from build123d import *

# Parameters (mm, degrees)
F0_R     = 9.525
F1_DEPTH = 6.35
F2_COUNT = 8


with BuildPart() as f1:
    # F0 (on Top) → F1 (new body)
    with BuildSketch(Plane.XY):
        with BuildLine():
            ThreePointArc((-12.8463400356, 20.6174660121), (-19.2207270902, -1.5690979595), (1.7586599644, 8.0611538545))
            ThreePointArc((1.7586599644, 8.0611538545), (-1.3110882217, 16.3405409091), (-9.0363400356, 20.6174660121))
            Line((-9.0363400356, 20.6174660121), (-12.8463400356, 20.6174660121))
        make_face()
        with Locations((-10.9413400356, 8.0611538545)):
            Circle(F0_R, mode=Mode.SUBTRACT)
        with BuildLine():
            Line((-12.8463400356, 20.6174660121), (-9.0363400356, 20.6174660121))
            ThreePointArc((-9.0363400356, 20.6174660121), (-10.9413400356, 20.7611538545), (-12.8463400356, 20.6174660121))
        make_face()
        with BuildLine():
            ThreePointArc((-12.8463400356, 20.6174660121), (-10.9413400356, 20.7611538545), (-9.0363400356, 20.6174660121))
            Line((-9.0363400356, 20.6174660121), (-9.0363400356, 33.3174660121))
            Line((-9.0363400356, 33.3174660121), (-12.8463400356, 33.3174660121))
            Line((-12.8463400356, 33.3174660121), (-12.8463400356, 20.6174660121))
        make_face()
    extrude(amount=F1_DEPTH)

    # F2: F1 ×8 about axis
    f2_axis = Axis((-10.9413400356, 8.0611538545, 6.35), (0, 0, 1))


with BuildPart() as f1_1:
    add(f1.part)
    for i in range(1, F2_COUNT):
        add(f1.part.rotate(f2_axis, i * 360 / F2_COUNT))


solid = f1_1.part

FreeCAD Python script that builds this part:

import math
import FreeCAD as App
import Part
import Sketcher
Q = App.Units.Quantity

doc = App.newDocument("Part")
body = doc.addObject("PartDesign::Body", "Body")

sketch1 = doc.addObject("Sketcher::SketchObject", "Sketch")
body.addObject(sketch1)
sketch1.AttachmentSupport = (doc.XY_Plane, [""])
sketch1.MapMode = "FlatFace"
sketch1.addGeometry(Part.ArcOfCircle(Part.Circle(App.Vector(-10.94134, 8.061154, 0), App.Vector(0, 0, 1), 12.7), math.radians(98.626927), math.radians(360)), False)
sketch1.addGeometry(Part.ArcOfCircle(Part.Circle(App.Vector(-10.94134, 8.061154, 0), App.Vector(0, 0, 1), 12.7), math.radians(0), math.radians(81.373073)), False)
sketch1.addGeometry(Part.LineSegment(App.Vector(-9.03634, 20.617466, 0), App.Vector(-9.03634, 33.317466, 0)), False)
sketch1.addGeometry(Part.LineSegment(App.Vector(-9.03634, 33.317466, 0), App.Vector(-12.84634, 33.317466, 0)), False)
sketch1.addGeometry(Part.LineSegment(App.Vector(-12.84634, 33.317466, 0), App.Vector(-12.84634, 20.617466, 0)), False)
sketch1.addGeometry(Part.Circle(App.Vector(-10.94134, 8.061154, 0), App.Vector(0, 0, 1), 9.525), False)
sketch1.addConstraint(Sketcher.Constraint("Tangent", 0, 2, 1, 1))
sketch1.addConstraint(Sketcher.Constraint("Coincident", 1, 2, 2, 1))
sketch1.addConstraint(Sketcher.Constraint("Coincident", 2, 2, 3, 1))
sketch1.addConstraint(Sketcher.Constraint("Coincident", 3, 2, 4, 1))
sketch1.addConstraint(Sketcher.Constraint("Coincident", 4, 2, 0, 1))
sketch1.addConstraint(Sketcher.Constraint("Vertical", 2))
sketch1.addConstraint(Sketcher.Constraint("Horizontal", 3))
sketch1.addConstraint(Sketcher.Constraint("Vertical", 4))
sketch1.addConstraint(Sketcher.Constraint("Coincident", 5, 3, 0, 3))
sketch1.addConstraint(Sketcher.Constraint("Equal", 0, 1))
sketch1.addConstraint(Sketcher.Constraint("Horizontal", 5, 3, 0, 2))
sketch1.addConstraint(Sketcher.Constraint("Horizontal", 1, 2, 4, 2))
sketch1.addConstraint(Sketcher.Constraint("Radius", 0, Q("0.5 in")))
sketch1.addConstraint(Sketcher.Constraint("Diameter", 5, Q("0.75 in")))
sketch1.addConstraint(Sketcher.Constraint("DistanceY", 2, 1, 2, 2, Q("0.5 in")))
sketch1.addConstraint(Sketcher.Constraint("DistanceX", 3, 2, 3, 1, Q("0.15 in")))
sketch1.addConstraint(Sketcher.Constraint("DistanceX", 0, 3, -1, 1, 10.94134))
sketch1.addConstraint(Sketcher.Constraint("DistanceY", -1, 1, 0, 3, 8.061154))
pad1 = doc.addObject("PartDesign::Pad", "Pad")
body.addObject(pad1)
pad1.Profile = sketch1
pad1.Length = Q("0.25 in")
body2 = doc.addObject("PartDesign::Body", "Body001")
doc.recompute()

body2.BaseFeature = body
doc.recompute()

body3 = doc.addObject("PartDesign::Body", "Body002")
body3.BaseFeature = body
body3.Placement = App.Placement(App.Vector(2.495452, 10.097753, 0), App.Rotation(App.Vector(0, 0, 1), 45))
boolean = doc.addObject("PartDesign::Boolean", "Boolean")
body2.addObject(boolean)
boolean.Type = "Fuse"
boolean.addObjects([body3])
doc.recompute()

body4 = doc.addObject("PartDesign::Body", "Body003")
body4.BaseFeature = body
body4.Placement = App.Placement(App.Vector(-2.880186, 19.002494, 0), App.Rotation(App.Vector(0, 0, 1), 90))
boolean2 = doc.addObject("PartDesign::Boolean", "Boolean001")
body2.addObject(boolean2)
boolean2.Type = "Fuse"
boolean2.addObjects([body4])
doc.recompute()

body5 = doc.addObject("PartDesign::Body", "Body004")
body5.BaseFeature = body
body5.Placement = App.Placement(App.Vector(-12.977939, 21.497946, 0), App.Rotation(App.Vector(0, 0, 1), 135))
boolean3 = doc.addObject("PartDesign::Boolean", "Boolean002")
body2.addObject(boolean3)
boolean3.Type = "Fuse"
boolean3.addObjects([body5])
doc.recompute()

body6 = doc.addObject("PartDesign::Body", "Body005")
body6.BaseFeature = body
body6.Placement = App.Placement(App.Vector(-21.88268, 16.122308, 0), App.Rotation(App.Vector(0, 0, 1), 180))
boolean4 = doc.addObject("PartDesign::Boolean", "Boolean003")
body2.addObject(boolean4)
boolean4.Type = "Fuse"
boolean4.addObjects([body6])
doc.recompute()

body7 = doc.addObject("PartDesign::Body", "Body006")
body7.BaseFeature = body
body7.Placement = App.Placement(App.Vector(-24.378132, 6.024555, 0), App.Rotation(App.Vector(0, 0, 1), 225))
boolean5 = doc.addObject("PartDesign::Boolean", "Boolean004")
body2.addObject(boolean5)
boolean5.Type = "Fuse"
boolean5.addObjects([body7])
doc.recompute()

body8 = doc.addObject("PartDesign::Body", "Body007")
body8.BaseFeature = body
body8.Placement = App.Placement(App.Vector(-19.002494, -2.880186, 0), App.Rotation(App.Vector(0, 0, 1), 270))
boolean6 = doc.addObject("PartDesign::Boolean", "Boolean005")
body2.addObject(boolean6)
boolean6.Type = "Fuse"
boolean6.addObjects([body8])
doc.recompute()

body.Placement = App.Placement(App.Vector(-8.904741, -5.375638, 0), App.Rotation(App.Vector(0, 0, 1), 315))
boolean7 = doc.addObject("PartDesign::Boolean", "Boolean006")
body2.addObject(boolean7)
boolean7.Type = "Fuse"
boolean7.addObjects([body])

doc.recompute()
